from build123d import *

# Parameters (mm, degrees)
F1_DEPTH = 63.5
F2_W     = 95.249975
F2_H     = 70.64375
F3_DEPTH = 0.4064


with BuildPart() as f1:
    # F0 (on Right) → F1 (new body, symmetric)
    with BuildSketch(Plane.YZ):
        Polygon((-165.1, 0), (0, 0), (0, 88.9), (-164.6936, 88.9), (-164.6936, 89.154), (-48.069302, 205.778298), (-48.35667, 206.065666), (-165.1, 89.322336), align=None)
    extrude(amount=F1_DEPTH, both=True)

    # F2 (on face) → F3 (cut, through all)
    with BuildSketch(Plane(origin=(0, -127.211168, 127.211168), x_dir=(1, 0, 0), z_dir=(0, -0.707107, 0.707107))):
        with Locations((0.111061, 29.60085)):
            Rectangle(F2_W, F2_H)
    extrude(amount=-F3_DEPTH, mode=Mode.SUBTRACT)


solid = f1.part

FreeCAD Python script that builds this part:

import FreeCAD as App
import Part
import Sketcher
from FreeCAD import Vector
Q = App.Units.Quantity


def add_polygon(sketch, points):
    """Adds a closed chain of lines whose ends are joined by coincident constraints."""
    first, n = sketch.GeometryCount, len(points)
    for a, b in zip(points, points[1:] + points[:1]):
        sketch.addGeometry(Part.LineSegment(App.Vector(*a, 0), App.Vector(*b, 0)), False)
    for i in range(n):
        sketch.addConstraint(Sketcher.Constraint("Coincident", first + i, 2, first + (i + 1) % n, 1))

doc = App.newDocument("Part")
body = doc.addObject("PartDesign::Body", "Body")

# Sketch on YZ plane
sketch1 = doc.addObject("Sketcher::SketchObject", "Sketch")
body.addObject(sketch1)
sketch1.AttachmentSupport = (doc.YZ_Plane, [""])
sketch1.MapMode = "FlatFace"
add_polygon(sketch1, [(-165.1, 0), (0, 0), (0, 88.9), (-164.6936, 88.9), (-164.6936, 89.154), (-48.069302, 205.778298), (-48.35667, 206.065666), (-165.1, 89.322336)])  # lines 0-7
sketch1.addConstraint([
    Sketcher.Constraint("Horizontal", 0),
    Sketcher.Constraint("Vertical", 1),
    Sketcher.Constraint("Horizontal", 2),
    Sketcher.Constraint("Vertical", 3),
    Sketcher.Constraint("Vertical", 7),
    Sketcher.Constraint("Coincident", 0, 2, -1, 1),
    Sketcher.Constraint("Perpendicular", 4, 5),
    Sketcher.Constraint("Perpendicular", 5, 6),
    Sketcher.Constraint("DistanceX", 0, 1, 0, 2, Q("6.5 in")),
    Sketcher.Constraint("DistanceY", 1, 1, 1, 2, Q("3.5 in")),
    Sketcher.Constraint("Angle", 4, Q("45 deg")),
    Sketcher.Constraint("Distance", 6, Q("6.5 in")),
    Sketcher.Constraint("DistanceY", 3, 1, 3, 2, Q("0.01 in")),
    Sketcher.Constraint("DistanceX", 2, 2, 2, 1, Q("6.484 in")),
    Sketcher.Constraint("Distance", 5, Q("0.016 in")),
])
pad1 = doc.addObject("PartDesign::Pad", "Pad")
body.addObject(pad1)
pad1.Profile = sketch1
pad1.Length = Q("5 in")
pad1.Midplane = True

# Sketch on an angled plane
sketch2 = doc.addObject("Sketcher::SketchObject", "Sketch001")
body.addObject(sketch2)
sketch2.Placement = App.Placement(Vector(0, -127.211168, 127.211168), App.Rotation(Vector(1, 0, 0), Vector(0, 0.707106781, 0.707106781), Vector(0, -0.707106781, 0.707106781), "ZXY"))
add_polygon(sketch2, [(-47.513926, 64.922725), (-47.513926, -5.721025), (47.736049, -5.721025), (47.736049, 64.922725)])  # lines 0-3
sketch2.addConstraint([
    Sketcher.Constraint("Vertical", 0),
    Sketcher.Constraint("Horizontal", 1),
    Sketcher.Constraint("Vertical", 2),
    Sketcher.Constraint("Horizontal", 3),
    Sketcher.Constraint("DistanceY", 0, 2, 0, 1, Q("2.78125 in")),
    Sketcher.Constraint("DistanceX", 1, 1, 1, 2, Q("95.249975 mm")),
    Sketcher.Constraint("DistanceX", -1, 1, 1, 2, Q("47.736049 mm")),
    Sketcher.Constraint("DistanceY", 0, 2, -1, 1, Q("5.721025 mm")),
])
pocket1 = doc.addObject("PartDesign::Pocket", "Pocket")
body.addObject(pocket1)
pocket1.Profile = sketch2
pocket1.Length = Q("0.016 in")

doc.recompute()
